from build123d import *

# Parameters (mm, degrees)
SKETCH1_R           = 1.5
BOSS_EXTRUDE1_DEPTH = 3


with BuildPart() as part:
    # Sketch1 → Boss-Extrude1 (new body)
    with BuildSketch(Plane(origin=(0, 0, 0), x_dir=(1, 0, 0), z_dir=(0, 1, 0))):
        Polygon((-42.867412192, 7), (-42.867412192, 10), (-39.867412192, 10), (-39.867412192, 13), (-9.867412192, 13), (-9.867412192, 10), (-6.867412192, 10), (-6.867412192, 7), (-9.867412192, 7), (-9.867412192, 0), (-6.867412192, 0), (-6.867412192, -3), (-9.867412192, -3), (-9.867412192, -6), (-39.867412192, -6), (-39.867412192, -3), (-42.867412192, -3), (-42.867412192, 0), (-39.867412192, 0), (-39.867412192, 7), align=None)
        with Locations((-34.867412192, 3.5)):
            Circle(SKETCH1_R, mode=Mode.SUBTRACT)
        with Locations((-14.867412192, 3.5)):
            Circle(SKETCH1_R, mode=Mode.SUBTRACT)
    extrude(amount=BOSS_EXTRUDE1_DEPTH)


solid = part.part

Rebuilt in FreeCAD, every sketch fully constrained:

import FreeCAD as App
import Part
import Sketcher

V = App.Vector
Q = App.Units.Quantity


def add_polygon(sketch, points):
    """Adds a closed chain of lines whose ends are joined by coincident constraints."""
    first, n = sketch.GeometryCount, len(points)
    for a, b in zip(points, points[1:] + points[:1]):
        sketch.addGeometry(Part.LineSegment(App.Vector(*a, 0), App.Vector(*b, 0)), False)
    for i in range(n):
        sketch.addConstraint(Sketcher.Constraint("Coincident", first + i, 2, first + (i + 1) % n, 1))

doc = App.newDocument("Part")
body = doc.addObject("PartDesign::Body", "Body")

# Sketch on XZ plane
sketch1 = doc.addObject("Sketcher::SketchObject", "Sketch")
body.addObject(sketch1)
sketch1.AttachmentSupport = (doc.XZ_Plane, [""])
sketch1.MapMode = "FlatFace"
add_polygon(sketch1, [(-42.867412, -10), (-42.867412, -7), (-39.867412, -7), (-39.867412, 0), (-42.867412, 0), (-42.867412, 3), (-39.867412, 3), (-39.867412, 6), (-9.867412, 6), (-9.867412, 3), (-6.867412, 3), (-6.867412, 0), (-9.867412, 0), (-9.867412, -7), (-6.867412, -7), (-6.867412, -10), (-9.867412, -10), (-9.867412, -13), (-39.867412, -13), (-39.867412, -10)])  # lines 0-19
sketch1.addGeometry(Part.Circle(V(-14.867412, -3.5, 0), V(0, 0, 1), 1.5), False)  # 20
sketch1.addGeometry(Part.Circle(V(-34.867412, -3.5, 0), V(0, 0, 1), 1.5), False)  # 21
sketch1.addConstraint([
    Sketcher.Constraint("Vertical", 0),
    Sketcher.Constraint("Horizontal", 1),
    Sketcher.Constraint("Vertical", 2),
    Sketcher.Constraint("Horizontal", 3),
    Sketcher.Constraint("Vertical", 4),
    Sketcher.Constraint("Horizontal", 5),
    Sketcher.Constraint("Vertical", 6),
    Sketcher.Constraint("Horizontal", 7),
    Sketcher.Constraint("Vertical", 8),
    Sketcher.Constraint("Horizontal", 9),
    Sketcher.Constraint("Vertical", 10),
    Sketcher.Constraint("Horizontal", 11),
    Sketcher.Constraint("Vertical", 12),
    Sketcher.Constraint("Horizontal", 13),
    Sketcher.Constraint("Vertical", 14),
    Sketcher.Constraint("Horizontal", 15),
    Sketcher.Constraint("Vertical", 16),
    Sketcher.Constraint("Horizontal", 17),
    Sketcher.Constraint("Vertical", 18),
    Sketcher.Constraint("Horizontal", 19),
    Sketcher.Constraint("Equal", 20, 21),
    Sketcher.Constraint("PointOnObject", 2, 2, -1),
    Sketcher.Constraint("PointOnObject", 10, 2, -1),
    Sketcher.Constraint("Horizontal", 20, 3, 21, 3),
    Sketcher.Constraint("Horizontal", 5, 2, 8, 2),
    Sketcher.Constraint("Horizontal", 1, 2, 12, 2),
    Sketcher.Constraint("Horizontal", 15, 2, 18, 2),
    Sketcher.Constraint("Vertical", 0, 2, 3, 2),
    Sketcher.Constraint("Vertical", 2, 2, 5, 2),
    Sketcher.Constraint("Vertical", 8, 2, 11, 2),
    Sketcher.Constraint("Vertical", 10, 2, 13, 2),
    Sketcher.Constraint("Vertical", 12, 2, 15, 2),
    Sketcher.Constraint("Vertical", 6, 2, 17, 2),
    Sketcher.Constraint("Equal", 5, 9),
    Sketcher.Constraint("Equal", 19, 0),
    Sketcher.Constraint("Equal", 0, 4),
    Sketcher.Constraint("Equal", 4, 6),
    Sketcher.Constraint("Equal", 14, 16),
    Sketcher.Constraint("Diameter", 20, Q("3 mm")),
    Sketcher.Constraint("DistanceX", 1, 1, 1, 2, Q("3 mm")),
    Sketcher.Constraint("DistanceX", 7, 1, 7, 2, Q("30 mm")),
    Sketcher.Constraint("DistanceY", 2, 1, 2, 2, Q("7 mm")),
    Sketcher.Constraint("DistanceX", 21, 3, 20, 3, Q("20 mm")),
    Sketcher.Constraint("DistanceX", 0, 2, 21, 3, Q("8 mm")),
    Sketcher.Constraint("DistanceY", 20, 3, -1, 1, Q("3.5 mm")),
    Sketcher.Constraint("DistanceX", 20, 3, -1, 1, Q("14.867412 mm")),
])
pad1 = doc.addObject("PartDesign::Pad", "Pad")
body.addObject(pad1)
pad1.Profile = sketch1
pad1.Length = 3
pad1.Reversed = True

doc.recompute()
